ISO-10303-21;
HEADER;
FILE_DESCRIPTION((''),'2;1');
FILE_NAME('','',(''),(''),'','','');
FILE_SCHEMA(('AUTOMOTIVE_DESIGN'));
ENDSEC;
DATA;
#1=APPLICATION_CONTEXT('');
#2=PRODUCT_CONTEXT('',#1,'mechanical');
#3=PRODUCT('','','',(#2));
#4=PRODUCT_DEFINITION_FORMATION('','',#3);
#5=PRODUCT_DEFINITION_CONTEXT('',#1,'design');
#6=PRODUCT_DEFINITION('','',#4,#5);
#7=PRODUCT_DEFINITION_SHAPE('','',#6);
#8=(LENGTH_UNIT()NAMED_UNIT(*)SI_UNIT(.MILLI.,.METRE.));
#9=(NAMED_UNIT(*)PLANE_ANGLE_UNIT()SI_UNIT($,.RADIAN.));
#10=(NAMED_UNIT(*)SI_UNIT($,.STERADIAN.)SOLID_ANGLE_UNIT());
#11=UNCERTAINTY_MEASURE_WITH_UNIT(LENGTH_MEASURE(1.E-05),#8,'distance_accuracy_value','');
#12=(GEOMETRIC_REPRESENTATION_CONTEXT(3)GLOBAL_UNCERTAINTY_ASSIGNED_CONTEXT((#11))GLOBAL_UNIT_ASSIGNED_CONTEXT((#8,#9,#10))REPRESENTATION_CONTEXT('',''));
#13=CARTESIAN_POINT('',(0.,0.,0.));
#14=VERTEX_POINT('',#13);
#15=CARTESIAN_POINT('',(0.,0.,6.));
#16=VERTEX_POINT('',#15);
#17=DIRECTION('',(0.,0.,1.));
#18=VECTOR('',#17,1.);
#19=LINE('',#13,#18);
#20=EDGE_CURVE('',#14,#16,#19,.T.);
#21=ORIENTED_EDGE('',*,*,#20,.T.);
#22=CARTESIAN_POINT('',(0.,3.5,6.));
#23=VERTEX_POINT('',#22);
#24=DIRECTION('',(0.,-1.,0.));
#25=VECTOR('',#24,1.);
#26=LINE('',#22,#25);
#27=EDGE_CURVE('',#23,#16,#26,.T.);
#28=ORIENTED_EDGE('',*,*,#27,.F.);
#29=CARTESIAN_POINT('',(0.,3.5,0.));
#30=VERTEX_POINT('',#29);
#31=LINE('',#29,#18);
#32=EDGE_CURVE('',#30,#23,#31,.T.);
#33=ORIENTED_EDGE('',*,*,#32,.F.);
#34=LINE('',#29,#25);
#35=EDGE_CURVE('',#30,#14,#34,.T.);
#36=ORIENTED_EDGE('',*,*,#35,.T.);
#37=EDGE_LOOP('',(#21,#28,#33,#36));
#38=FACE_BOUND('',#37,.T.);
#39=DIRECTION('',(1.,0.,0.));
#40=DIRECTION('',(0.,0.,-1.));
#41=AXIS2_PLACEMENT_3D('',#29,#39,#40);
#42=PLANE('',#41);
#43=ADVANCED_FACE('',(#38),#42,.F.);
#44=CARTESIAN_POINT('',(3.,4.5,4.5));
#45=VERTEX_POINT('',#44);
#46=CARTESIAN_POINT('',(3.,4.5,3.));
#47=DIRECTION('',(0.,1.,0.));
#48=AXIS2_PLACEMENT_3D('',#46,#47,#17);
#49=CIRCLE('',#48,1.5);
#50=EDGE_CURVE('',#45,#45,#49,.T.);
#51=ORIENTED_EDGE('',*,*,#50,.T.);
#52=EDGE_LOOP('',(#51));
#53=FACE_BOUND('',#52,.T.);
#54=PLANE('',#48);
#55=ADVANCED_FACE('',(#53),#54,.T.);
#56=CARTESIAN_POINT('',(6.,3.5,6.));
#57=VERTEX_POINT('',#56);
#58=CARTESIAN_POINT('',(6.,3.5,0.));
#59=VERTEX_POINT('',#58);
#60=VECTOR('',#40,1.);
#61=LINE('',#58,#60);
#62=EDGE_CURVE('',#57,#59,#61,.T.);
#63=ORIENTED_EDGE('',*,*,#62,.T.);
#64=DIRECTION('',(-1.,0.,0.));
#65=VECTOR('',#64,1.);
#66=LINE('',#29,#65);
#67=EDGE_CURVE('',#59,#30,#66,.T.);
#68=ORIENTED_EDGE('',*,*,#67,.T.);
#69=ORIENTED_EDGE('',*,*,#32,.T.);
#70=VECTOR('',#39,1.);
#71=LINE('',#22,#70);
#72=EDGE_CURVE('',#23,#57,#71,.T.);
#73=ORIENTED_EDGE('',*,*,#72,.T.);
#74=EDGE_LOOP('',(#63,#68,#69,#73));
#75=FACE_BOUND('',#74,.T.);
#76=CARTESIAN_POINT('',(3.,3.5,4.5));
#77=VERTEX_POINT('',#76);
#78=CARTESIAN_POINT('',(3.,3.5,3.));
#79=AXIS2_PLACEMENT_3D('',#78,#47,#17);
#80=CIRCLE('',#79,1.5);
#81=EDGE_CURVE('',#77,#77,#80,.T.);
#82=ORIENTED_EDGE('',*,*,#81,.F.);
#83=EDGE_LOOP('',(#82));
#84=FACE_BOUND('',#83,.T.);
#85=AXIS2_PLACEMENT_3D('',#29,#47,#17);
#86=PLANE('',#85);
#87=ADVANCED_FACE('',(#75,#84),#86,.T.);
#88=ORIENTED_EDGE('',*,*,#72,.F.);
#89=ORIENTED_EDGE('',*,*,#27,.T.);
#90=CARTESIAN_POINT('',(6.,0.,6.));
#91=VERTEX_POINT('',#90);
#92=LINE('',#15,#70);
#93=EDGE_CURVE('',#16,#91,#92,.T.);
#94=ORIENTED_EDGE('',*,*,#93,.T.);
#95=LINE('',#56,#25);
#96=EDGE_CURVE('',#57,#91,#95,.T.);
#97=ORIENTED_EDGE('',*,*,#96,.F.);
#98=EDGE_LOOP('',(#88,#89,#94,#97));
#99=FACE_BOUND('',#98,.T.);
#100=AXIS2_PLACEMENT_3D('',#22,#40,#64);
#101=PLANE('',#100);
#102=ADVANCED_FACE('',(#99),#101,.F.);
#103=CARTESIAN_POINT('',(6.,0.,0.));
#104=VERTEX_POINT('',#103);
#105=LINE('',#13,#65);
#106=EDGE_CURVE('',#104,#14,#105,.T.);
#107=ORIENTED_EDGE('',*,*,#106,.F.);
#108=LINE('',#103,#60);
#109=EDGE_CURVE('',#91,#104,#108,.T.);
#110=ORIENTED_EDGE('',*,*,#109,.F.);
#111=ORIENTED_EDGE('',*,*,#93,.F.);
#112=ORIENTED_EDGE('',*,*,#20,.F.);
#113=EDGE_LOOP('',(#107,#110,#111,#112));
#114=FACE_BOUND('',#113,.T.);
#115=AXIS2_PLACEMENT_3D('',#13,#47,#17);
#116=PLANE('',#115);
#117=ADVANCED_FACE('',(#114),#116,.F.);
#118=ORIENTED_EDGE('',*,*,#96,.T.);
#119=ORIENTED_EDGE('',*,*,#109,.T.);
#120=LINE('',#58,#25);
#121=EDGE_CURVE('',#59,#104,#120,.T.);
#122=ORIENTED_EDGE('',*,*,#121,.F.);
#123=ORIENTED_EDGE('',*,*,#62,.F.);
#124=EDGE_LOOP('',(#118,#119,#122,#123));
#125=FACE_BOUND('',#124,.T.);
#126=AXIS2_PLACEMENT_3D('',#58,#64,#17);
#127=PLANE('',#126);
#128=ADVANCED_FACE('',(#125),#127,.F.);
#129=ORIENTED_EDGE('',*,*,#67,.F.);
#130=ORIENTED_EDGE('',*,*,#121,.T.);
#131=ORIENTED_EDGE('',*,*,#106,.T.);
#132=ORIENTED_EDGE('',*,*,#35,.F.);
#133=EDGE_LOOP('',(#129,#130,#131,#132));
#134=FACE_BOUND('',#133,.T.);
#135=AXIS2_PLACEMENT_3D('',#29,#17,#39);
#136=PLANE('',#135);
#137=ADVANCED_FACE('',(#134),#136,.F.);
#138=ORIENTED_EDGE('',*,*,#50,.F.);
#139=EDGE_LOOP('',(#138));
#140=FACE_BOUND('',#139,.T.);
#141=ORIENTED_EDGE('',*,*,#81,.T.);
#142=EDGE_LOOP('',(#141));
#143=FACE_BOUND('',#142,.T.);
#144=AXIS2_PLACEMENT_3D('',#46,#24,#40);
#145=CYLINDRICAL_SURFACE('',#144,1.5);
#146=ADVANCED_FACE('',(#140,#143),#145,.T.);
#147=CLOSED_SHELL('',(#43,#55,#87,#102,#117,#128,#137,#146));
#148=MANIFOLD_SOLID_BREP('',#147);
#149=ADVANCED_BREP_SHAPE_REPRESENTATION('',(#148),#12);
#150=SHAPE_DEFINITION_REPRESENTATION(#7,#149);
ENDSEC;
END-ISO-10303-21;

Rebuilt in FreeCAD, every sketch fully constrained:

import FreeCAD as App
import Part
import Sketcher
from FreeCAD import Vector

doc = App.newDocument("Part")
body = doc.addObject("PartDesign::Body", "Body")

# Sketch on XZ plane
sketch1 = body.newObject("Sketcher::SketchObject", "Sketch")
sketch1.AttachmentSupport = (doc.getObject("XZ_Plane"), [""])
sketch1.MapMode = "FlatFace"
sketch1.addGeometry([
    Part.LineSegment(Vector(0, 0, 0), Vector(0, 6, 0)),
    Part.LineSegment(Vector(0, 6, 0), Vector(6, 6, 0)),
    Part.LineSegment(Vector(6, 6, 0), Vector(6, 0, 0)),
    Part.LineSegment(Vector(6, 0, 0), Vector(0, 0, 0)),
], False)
sketch1.addConstraint([
    Sketcher.Constraint("Coincident", 0, 2, 1, 1),
    Sketcher.Constraint("Coincident", 1, 2, 2, 1),
    Sketcher.Constraint("Coincident", 2, 2, 3, 1),
    Sketcher.Constraint("Coincident", 3, 2, 0, 1),
    Sketcher.Constraint("Vertical", 0),
    Sketcher.Constraint("Horizontal", 1),
    Sketcher.Constraint("Vertical", 2),
    Sketcher.Constraint("Horizontal", 3),
    Sketcher.Constraint("Coincident", 3, 2, -1, 1),
    Sketcher.Constraint("Equal", 3, 0),
    Sketcher.Constraint("DistanceX", 1, 1, 1, 2, 6.0),
])
pad1 = body.newObject("PartDesign::Pad", "Pad")
pad1.Profile = sketch1
pad1.Length = 3.5
pad1.Reversed = True

# Sketch on XZ plane
sketch2 = body.newObject("Sketcher::SketchObject", "Sketch001")
sketch2.AttachmentSupport = (doc.getObject("XZ_Plane"), [""])
sketch2.MapMode = "FlatFace"
sketch2.AttachmentOffset = App.Placement(Vector(0, 0, -3.5), App.Rotation())
sketch2.addGeometry(Part.Circle(Vector(3, 3, 0), Vector(0, 0, 1), 1.5), False)
sketch2.addConstraint([
    Sketcher.Constraint("Diameter", 0, 3.0),
    Sketcher.Constraint("DistanceX", -1, 1, 0, 3, 3.0),
    Sketcher.Constraint("DistanceY", -1, 1, 0, 3, 3.0),
])
pad2 = body.newObject("PartDesign::Pad", "Pad001")
pad2.Profile = sketch2
pad2.Length = 1
pad2.Reversed = True

doc.recompute()
